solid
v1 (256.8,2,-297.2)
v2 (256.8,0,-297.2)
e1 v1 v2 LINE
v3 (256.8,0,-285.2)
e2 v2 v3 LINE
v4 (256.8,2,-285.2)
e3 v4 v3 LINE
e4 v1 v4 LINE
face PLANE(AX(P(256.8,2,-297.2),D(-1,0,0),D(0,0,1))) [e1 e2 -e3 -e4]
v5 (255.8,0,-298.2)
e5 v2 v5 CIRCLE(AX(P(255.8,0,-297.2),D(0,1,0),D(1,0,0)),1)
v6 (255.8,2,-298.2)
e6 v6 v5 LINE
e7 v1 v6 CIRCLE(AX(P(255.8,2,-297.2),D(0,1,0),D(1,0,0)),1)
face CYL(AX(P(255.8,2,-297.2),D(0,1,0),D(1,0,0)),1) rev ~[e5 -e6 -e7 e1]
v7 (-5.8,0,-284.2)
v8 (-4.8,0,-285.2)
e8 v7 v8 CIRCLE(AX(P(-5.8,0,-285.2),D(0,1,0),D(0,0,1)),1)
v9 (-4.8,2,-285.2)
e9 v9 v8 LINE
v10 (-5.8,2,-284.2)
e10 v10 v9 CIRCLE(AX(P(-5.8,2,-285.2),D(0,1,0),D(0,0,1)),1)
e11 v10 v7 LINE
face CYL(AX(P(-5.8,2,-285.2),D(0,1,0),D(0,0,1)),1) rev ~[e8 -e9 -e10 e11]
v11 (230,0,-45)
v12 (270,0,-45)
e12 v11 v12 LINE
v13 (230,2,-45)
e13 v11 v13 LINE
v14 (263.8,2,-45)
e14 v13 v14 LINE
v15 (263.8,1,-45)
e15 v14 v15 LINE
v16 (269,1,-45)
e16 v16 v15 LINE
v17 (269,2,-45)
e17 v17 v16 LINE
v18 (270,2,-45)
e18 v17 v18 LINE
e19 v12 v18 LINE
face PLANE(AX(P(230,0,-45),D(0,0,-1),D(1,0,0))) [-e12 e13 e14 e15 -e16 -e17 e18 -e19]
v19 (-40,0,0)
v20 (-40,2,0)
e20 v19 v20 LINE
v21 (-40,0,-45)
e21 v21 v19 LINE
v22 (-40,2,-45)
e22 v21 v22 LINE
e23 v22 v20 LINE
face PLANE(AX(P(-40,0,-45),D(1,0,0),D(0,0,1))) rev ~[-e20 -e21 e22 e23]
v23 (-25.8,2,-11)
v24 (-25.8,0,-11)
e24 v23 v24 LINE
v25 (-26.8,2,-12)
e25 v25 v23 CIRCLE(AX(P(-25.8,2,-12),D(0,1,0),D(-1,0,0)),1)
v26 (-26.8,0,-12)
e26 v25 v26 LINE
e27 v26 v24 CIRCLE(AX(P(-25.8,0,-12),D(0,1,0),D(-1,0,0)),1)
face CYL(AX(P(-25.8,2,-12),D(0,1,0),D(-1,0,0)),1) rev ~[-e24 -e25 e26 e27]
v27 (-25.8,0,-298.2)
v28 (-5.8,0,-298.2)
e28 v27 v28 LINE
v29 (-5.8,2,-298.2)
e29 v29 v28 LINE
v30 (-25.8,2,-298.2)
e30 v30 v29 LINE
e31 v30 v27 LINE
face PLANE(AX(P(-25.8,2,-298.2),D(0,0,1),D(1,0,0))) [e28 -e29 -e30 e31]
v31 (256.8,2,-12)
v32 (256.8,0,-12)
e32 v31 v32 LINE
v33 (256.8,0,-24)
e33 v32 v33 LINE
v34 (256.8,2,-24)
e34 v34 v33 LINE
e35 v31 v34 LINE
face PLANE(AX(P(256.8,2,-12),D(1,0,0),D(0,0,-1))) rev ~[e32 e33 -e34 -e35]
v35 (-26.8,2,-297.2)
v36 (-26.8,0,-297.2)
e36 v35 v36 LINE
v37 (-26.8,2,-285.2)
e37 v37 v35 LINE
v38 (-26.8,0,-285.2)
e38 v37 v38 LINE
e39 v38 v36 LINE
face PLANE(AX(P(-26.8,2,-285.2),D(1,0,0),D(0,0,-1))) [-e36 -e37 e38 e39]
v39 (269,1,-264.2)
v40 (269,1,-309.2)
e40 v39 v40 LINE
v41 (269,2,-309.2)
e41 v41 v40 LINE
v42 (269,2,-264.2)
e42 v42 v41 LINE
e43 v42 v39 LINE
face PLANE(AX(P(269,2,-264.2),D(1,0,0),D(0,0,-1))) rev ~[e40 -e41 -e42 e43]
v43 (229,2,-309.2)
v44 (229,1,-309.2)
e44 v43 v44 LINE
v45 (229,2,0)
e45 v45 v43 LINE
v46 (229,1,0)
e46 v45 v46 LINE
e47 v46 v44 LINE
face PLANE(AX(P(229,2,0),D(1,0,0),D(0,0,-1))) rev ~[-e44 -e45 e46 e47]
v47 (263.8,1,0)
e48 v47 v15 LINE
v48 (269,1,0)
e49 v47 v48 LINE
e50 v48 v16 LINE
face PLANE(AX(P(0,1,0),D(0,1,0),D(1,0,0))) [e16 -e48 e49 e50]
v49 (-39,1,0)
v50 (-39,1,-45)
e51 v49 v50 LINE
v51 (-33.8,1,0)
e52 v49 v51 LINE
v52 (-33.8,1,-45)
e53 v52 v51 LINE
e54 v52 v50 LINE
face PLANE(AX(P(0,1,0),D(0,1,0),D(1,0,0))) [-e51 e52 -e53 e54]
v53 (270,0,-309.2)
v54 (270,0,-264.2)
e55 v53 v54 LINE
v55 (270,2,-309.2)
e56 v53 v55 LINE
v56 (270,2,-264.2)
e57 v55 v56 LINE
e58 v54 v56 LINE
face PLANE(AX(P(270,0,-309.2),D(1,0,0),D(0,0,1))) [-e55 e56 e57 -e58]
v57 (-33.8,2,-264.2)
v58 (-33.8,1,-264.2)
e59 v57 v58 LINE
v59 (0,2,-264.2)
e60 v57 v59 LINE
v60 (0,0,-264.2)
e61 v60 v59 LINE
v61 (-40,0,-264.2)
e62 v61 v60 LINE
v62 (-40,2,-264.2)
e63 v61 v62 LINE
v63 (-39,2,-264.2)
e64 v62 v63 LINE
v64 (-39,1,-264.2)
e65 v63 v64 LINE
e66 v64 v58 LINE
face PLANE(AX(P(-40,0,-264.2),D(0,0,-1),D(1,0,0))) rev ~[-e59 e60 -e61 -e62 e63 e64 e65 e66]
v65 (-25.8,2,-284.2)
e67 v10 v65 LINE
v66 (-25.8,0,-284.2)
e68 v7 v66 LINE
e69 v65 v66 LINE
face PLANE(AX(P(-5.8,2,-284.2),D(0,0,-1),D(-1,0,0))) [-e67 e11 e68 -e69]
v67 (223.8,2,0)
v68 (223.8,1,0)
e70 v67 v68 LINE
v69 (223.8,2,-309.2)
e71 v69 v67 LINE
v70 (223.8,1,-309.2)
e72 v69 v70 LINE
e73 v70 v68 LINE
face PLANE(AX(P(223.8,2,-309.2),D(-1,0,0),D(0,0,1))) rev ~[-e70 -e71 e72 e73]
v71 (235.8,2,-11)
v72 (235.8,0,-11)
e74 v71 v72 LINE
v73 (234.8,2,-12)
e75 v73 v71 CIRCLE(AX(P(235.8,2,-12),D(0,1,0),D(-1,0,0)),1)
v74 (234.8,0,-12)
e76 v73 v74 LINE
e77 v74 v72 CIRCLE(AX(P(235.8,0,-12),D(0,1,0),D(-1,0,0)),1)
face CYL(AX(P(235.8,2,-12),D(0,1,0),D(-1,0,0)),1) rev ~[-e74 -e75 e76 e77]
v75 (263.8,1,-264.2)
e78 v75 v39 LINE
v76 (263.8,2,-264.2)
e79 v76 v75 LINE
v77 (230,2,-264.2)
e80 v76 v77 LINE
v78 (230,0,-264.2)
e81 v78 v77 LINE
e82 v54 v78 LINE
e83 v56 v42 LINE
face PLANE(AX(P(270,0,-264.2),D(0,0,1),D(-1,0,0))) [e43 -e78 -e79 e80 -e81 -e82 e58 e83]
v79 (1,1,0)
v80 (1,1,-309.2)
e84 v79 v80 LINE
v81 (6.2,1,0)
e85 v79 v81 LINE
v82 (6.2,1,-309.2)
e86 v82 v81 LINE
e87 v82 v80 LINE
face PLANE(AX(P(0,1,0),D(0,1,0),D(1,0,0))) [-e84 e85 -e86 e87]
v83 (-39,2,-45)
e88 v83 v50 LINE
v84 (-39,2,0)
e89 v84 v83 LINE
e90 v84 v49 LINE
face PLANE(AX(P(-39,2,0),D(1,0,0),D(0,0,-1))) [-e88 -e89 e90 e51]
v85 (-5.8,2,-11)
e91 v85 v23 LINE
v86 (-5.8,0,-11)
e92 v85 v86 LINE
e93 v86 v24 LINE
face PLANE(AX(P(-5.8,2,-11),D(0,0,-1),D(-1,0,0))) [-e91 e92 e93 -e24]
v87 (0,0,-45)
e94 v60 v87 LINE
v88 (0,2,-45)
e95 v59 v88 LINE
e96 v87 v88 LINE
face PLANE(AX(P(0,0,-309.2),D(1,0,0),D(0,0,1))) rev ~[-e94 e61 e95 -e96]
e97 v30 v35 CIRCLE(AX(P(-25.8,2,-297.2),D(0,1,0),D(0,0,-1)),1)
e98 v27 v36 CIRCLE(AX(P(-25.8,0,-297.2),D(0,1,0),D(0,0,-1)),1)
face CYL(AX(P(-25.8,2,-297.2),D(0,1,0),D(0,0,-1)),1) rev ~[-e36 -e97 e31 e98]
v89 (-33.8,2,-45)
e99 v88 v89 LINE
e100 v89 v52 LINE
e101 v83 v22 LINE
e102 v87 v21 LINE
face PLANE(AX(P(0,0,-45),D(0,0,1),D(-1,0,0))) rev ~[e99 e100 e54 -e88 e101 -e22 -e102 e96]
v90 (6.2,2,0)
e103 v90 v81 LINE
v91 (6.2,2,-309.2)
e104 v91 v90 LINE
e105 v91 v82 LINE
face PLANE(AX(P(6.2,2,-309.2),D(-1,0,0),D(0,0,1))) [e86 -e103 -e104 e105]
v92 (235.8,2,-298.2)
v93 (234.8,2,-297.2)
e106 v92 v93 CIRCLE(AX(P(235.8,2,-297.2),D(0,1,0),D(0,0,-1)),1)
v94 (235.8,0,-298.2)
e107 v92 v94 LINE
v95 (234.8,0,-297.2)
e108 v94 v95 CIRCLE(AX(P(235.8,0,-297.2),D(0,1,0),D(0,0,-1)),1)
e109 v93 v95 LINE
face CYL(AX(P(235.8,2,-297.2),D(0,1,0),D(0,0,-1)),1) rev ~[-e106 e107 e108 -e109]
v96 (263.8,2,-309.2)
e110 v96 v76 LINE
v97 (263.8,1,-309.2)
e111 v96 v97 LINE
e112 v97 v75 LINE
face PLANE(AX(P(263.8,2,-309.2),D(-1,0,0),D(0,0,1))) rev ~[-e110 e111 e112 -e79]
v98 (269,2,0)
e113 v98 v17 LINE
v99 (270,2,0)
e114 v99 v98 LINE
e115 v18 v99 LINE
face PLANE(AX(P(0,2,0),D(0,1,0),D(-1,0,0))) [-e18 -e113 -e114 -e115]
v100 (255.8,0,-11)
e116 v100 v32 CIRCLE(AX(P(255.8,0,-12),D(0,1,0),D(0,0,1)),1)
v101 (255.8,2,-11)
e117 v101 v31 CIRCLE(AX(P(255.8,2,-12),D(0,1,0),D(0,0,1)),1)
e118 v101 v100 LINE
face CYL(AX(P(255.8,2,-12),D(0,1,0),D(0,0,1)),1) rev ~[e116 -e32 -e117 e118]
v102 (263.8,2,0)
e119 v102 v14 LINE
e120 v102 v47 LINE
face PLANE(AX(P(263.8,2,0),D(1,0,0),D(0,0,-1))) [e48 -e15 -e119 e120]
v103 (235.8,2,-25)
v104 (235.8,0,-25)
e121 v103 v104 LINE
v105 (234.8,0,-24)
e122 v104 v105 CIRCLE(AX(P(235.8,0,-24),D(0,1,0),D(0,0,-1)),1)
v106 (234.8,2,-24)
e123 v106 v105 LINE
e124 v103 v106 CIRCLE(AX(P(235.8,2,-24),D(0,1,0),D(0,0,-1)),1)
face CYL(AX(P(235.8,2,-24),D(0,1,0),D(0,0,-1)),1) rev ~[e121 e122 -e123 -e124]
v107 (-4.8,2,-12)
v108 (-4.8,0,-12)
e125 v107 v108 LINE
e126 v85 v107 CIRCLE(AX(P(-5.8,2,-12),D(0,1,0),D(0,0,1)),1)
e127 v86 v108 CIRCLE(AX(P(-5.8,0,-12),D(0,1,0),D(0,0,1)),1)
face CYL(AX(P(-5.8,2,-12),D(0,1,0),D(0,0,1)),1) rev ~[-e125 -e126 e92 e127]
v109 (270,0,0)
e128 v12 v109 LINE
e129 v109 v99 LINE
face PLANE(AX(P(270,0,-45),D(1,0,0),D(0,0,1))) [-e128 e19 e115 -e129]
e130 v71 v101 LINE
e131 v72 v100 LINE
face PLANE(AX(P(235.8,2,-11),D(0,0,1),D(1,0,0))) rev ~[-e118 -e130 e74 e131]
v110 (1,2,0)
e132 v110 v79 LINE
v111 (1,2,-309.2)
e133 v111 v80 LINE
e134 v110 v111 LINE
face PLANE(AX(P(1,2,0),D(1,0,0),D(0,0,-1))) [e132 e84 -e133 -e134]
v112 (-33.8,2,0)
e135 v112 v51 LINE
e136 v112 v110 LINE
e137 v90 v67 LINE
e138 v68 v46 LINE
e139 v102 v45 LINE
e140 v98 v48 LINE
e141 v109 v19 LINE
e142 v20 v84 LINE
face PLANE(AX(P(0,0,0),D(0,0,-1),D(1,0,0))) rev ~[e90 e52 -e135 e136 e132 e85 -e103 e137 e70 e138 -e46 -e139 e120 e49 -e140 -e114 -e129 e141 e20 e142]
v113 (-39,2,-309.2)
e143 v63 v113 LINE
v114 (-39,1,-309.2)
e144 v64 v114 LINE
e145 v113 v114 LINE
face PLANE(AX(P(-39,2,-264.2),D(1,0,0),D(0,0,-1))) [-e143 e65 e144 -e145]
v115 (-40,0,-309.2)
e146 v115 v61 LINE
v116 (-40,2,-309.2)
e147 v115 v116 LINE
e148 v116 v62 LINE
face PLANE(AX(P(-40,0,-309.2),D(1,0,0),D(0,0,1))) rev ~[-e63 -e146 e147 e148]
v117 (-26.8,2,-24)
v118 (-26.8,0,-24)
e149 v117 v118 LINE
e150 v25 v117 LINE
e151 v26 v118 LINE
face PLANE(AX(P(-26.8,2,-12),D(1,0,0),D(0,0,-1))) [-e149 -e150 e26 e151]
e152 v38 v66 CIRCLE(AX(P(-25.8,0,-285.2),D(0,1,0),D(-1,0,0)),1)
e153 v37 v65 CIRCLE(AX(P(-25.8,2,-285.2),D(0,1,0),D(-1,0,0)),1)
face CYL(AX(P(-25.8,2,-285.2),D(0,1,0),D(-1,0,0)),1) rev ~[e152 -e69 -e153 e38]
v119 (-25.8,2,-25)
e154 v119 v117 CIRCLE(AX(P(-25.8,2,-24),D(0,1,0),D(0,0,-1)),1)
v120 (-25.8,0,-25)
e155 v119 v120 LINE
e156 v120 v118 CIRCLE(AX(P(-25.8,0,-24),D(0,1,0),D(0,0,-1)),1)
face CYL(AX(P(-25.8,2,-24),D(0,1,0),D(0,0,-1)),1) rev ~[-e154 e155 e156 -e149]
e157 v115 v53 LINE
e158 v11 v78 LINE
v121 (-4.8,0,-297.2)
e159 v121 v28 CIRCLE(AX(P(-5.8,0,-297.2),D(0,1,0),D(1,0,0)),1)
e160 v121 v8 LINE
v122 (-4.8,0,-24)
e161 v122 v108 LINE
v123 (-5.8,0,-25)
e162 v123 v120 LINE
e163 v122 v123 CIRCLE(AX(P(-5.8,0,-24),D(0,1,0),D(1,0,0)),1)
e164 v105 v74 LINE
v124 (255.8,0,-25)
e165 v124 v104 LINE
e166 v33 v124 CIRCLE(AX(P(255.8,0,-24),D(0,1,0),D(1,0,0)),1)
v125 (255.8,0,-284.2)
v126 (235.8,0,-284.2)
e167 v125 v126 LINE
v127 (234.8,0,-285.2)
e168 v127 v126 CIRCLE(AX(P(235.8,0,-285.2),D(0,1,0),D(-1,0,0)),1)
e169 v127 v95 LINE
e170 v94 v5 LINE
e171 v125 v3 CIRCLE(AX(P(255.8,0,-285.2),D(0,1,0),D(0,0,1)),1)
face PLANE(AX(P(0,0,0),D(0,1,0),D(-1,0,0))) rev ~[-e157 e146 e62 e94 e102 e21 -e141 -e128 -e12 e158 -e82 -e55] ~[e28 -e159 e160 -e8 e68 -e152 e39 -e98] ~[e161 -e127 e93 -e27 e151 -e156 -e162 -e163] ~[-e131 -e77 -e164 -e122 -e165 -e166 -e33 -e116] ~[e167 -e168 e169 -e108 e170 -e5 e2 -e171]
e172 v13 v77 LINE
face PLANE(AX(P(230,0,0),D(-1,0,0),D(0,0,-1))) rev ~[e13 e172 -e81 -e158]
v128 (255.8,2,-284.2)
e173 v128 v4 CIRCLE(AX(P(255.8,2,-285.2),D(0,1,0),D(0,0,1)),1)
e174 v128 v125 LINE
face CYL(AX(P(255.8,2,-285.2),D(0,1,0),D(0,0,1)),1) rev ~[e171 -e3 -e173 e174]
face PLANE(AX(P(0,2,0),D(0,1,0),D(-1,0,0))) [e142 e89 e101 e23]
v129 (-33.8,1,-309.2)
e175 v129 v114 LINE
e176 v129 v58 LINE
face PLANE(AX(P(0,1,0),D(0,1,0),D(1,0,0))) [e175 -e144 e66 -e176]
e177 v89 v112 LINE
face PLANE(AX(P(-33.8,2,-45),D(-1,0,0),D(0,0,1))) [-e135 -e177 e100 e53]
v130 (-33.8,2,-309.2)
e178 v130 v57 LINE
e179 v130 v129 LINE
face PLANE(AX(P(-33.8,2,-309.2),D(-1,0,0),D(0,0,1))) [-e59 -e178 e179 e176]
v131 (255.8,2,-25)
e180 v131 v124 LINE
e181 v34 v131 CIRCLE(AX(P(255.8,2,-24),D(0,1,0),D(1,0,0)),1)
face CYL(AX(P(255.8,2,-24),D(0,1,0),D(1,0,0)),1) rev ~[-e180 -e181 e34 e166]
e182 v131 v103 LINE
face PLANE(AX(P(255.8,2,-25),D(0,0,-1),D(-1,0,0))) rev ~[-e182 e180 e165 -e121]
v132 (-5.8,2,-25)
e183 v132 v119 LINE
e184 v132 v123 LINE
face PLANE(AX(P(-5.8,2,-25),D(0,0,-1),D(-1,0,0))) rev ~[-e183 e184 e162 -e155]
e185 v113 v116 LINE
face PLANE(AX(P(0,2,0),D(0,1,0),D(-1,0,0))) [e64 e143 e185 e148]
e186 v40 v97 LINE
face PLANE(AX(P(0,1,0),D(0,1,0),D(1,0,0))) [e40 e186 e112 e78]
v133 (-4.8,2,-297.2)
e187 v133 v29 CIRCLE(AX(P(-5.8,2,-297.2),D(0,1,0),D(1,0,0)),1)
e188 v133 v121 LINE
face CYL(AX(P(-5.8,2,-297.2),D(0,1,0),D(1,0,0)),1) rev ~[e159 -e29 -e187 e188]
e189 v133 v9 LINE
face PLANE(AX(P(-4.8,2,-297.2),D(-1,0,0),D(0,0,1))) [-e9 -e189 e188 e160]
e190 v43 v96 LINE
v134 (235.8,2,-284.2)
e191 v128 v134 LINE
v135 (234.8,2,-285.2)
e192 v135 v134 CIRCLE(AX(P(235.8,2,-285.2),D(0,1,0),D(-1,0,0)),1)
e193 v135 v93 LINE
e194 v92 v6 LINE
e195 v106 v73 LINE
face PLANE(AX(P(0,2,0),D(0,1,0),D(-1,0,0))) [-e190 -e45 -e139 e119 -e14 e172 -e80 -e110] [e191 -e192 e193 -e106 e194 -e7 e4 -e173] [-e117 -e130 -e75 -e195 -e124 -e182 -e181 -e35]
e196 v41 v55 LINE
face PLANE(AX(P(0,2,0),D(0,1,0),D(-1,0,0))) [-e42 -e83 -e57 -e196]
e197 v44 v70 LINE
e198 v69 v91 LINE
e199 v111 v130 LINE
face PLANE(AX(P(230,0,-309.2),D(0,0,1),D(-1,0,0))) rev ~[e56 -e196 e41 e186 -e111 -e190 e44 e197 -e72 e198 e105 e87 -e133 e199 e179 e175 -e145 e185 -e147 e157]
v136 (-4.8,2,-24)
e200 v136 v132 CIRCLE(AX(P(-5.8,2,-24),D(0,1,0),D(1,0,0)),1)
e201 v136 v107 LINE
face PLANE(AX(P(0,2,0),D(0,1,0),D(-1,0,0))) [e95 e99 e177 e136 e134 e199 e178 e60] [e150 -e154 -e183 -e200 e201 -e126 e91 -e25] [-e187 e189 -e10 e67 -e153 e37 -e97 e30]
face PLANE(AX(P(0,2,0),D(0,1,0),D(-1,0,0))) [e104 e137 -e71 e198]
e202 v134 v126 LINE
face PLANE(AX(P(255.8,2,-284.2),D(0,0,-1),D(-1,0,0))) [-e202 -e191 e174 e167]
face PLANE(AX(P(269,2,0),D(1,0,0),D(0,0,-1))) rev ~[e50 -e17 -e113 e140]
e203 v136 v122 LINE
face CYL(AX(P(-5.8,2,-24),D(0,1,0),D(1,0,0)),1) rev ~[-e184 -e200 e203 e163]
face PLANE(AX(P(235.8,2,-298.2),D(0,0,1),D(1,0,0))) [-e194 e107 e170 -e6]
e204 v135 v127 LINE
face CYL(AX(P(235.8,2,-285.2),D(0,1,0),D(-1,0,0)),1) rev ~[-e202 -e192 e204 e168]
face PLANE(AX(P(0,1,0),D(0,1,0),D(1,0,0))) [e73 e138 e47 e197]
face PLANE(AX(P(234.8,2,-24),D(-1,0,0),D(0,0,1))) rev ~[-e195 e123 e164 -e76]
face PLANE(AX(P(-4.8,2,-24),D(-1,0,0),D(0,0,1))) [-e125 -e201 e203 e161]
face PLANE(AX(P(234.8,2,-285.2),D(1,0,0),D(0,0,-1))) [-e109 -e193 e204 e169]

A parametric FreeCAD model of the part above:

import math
import FreeCAD as App
import Part
import Sketcher
Q = App.Units.Quantity

doc = App.newDocument("Part")
body = doc.addObject("PartDesign::Body", "Body")

sketch1 = doc.addObject("Sketcher::SketchObject", "Sketch")
body.addObject(sketch1)
sketch1.AttachmentSupport = (doc.XZ_Plane, [""])
sketch1.MapMode = "FlatFace"
sketch1.addGeometry([
    Part.LineSegment(App.Vector(0, -309, 0), App.Vector(0, 0, 0)),
    Part.LineSegment(App.Vector(0, 0, 0), App.Vector(230, 0, 0)),
    Part.LineSegment(App.Vector(230, 0, 0), App.Vector(230, -309, 0)),
    Part.LineSegment(App.Vector(230, -309, 0), App.Vector(0, -309, 0)),
], False)
sketch1.addConstraint([
    Sketcher.Constraint("Coincident", 0, 2, 1, 1),
    Sketcher.Constraint("Coincident", 1, 2, 2, 1),
    Sketcher.Constraint("Coincident", 2, 2, 3, 1),
    Sketcher.Constraint("Coincident", 3, 2, 0, 1),
    Sketcher.Constraint("Vertical", 0),
    Sketcher.Constraint("Horizontal", 1),
    Sketcher.Constraint("Vertical", 2),
    Sketcher.Constraint("Horizontal", 3),
    Sketcher.Constraint("Coincident", 0, 2, -1, 1),
    Sketcher.Constraint("DistanceX", 1, 1, 1, 2, Q("230 mm")),
    Sketcher.Constraint("DistanceY", 0, 1, 0, 2, Q("309.2 mm")),
])
pad1 = doc.addObject("PartDesign::Pad", "Pad")
body.addObject(pad1)
pad1.Profile = sketch1
pad1.Length = 2
pad1.Reversed = True

sketch2 = doc.addObject("Sketcher::SketchObject", "Sketch001")
body.addObject(sketch2)
sketch2.AttachmentSupport = (doc.XZ_Plane, [""])
sketch2.MapMode = "FlatFace"
sketch2.AttachmentOffset = App.Placement(App.Vector(0, 0, -2), App.Rotation())
sketch2.addGeometry([
    Part.LineSegment(App.Vector(1, -309, 0), App.Vector(1, 0, 0)),
    Part.LineSegment(App.Vector(1, 0, 0), App.Vector(6, 0, 0)),
    Part.LineSegment(App.Vector(6, 0, 0), App.Vector(6, -309, 0)),
    Part.LineSegment(App.Vector(6, -309, 0), App.Vector(1, -309, 0)),
    Part.LineSegment(App.Vector(224, -309, 0), App.Vector(224, 0, 0)),
    Part.LineSegment(App.Vector(224, 0, 0), App.Vector(229, 0, 0)),
    Part.LineSegment(App.Vector(229, 0, 0), App.Vector(229, -309, 0)),
    Part.LineSegment(App.Vector(229, -309, 0), App.Vector(224, -309, 0)),
], False)
sketch2.addConstraint([
    Sketcher.Constraint("Coincident", 0, 2, 1, 1),
    Sketcher.Constraint("Coincident", 1, 2, 2, 1),
    Sketcher.Constraint("Coincident", 2, 2, 3, 1),
    Sketcher.Constraint("Coincident", 3, 2, 0, 1),
    Sketcher.Constraint("Coincident", 4, 2, 5, 1),
    Sketcher.Constraint("Coincident", 5, 2, 6, 1),
    Sketcher.Constraint("Coincident", 6, 2, 7, 1),
    Sketcher.Constraint("Coincident", 7, 2, 4, 1),
    Sketcher.Constraint("Vertical", 0),
    Sketcher.Constraint("Horizontal", 1),
    Sketcher.Constraint("Vertical", 2),
    Sketcher.Constraint("Horizontal", 3),
    Sketcher.Constraint("Vertical", 4),
    Sketcher.Constraint("Horizontal", 5),
    Sketcher.Constraint("Vertical", 6),
    Sketcher.Constraint("Horizontal", 7),
    Sketcher.Constraint("PointOnObject", 0, 2, -1),
    Sketcher.Constraint("PointOnObject", 4, 2, -1),
    Sketcher.Constraint("Horizontal", 3, 2, 6, 2),
    Sketcher.Constraint("Equal", 3, 5),
    Sketcher.Constraint("DistanceX", 1, 1, 1, 2, Q("5.2 mm")),
    Sketcher.Constraint("DistanceX", -1, 1, 0, 2, Q("1 mm")),
    Sketcher.Constraint("DistanceY", 0, 1, 0, 2, Q("309.2 mm")),
    Sketcher.Constraint("DistanceX", -1, 1, 5, 2, Q("229 mm")),
])
pocket1 = doc.addObject("PartDesign::Pocket", "Pocket")
body.addObject(pocket1)
pocket1.Profile = sketch2
pocket1.Length = 1
pocket1.Reversed = True

sketch3 = doc.addObject("Sketcher::SketchObject", "Sketch002")
body.addObject(sketch3)
sketch3.AttachmentSupport = (doc.XZ_Plane, [""])
sketch3.MapMode = "FlatFace"
sketch3.addGeometry([
    Part.LineSegment(App.Vector(0, -309, 0), App.Vector(0, -264, 0)),
    Part.LineSegment(App.Vector(0, -264, 0), App.Vector(-40, -264, 0)),
    Part.LineSegment(App.Vector(-40, -264, 0), App.Vector(-40, -309, 0)),
    Part.LineSegment(App.Vector(-40, -309, 0), App.Vector(0, -309, 0)),
    Part.LineSegment(App.Vector(0, -45, 0), App.Vector(0, 0, 0)),
    Part.LineSegment(App.Vector(0, 0, 0), App.Vector(-40, 0, 0)),
    Part.LineSegment(App.Vector(-40, 0, 0), App.Vector(-40, -45, 0)),
    Part.LineSegment(App.Vector(-40, -45, 0), App.Vector(0, -45, 0)),
    Part.LineSegment(App.Vector(270, 0, 0), App.Vector(230, 0, 0)),
    Part.LineSegment(App.Vector(230, 0, 0), App.Vector(230, -45, 0)),
    Part.LineSegment(App.Vector(230, -45, 0), App.Vector(270, -45, 0)),
    Part.LineSegment(App.Vector(270, -45, 0), App.Vector(270, 0, 0)),
    Part.LineSegment(App.Vector(270, -264, 0), App.Vector(230, -264, 0)),
    Part.LineSegment(App.Vector(230, -264, 0), App.Vector(230, -309, 0)),
    Part.LineSegment(App.Vector(230, -309, 0), App.Vector(270, -309, 0)),
    Part.LineSegment(App.Vector(270, -309, 0), App.Vector(270, -264, 0)),
], False)
sketch3.addConstraint([
    Sketcher.Constraint("Coincident", 0, 2, 1, 1),
    Sketcher.Constraint("Coincident", 1, 2, 2, 1),
    Sketcher.Constraint("Coincident", 2, 2, 3, 1),
    Sketcher.Constraint("Coincident", 3, 2, 0, 1),
    Sketcher.Constraint("Coincident", 4, 2, 5, 1),
    Sketcher.Constraint("Coincident", 5, 2, 6, 1),
    Sketcher.Constraint("Coincident", 6, 2, 7, 1),
    Sketcher.Constraint("Coincident", 7, 2, 4, 1),
    Sketcher.Constraint("Coincident", 8, 2, 9, 1),
    Sketcher.Constraint("Coincident", 9, 2, 10, 1),
    Sketcher.Constraint("Coincident", 10, 2, 11, 1),
    Sketcher.Constraint("Coincident", 11, 2, 8, 1),
    Sketcher.Constraint("Coincident", 12, 2, 13, 1),
    Sketcher.Constraint("Coincident", 13, 2, 14, 1),
    Sketcher.Constraint("Coincident", 14, 2, 15, 1),
    Sketcher.Constraint("Coincident", 15, 2, 12, 1),
    Sketcher.Constraint("Vertical", 0),
    Sketcher.Constraint("Horizontal", 1),
    Sketcher.Constraint("Vertical", 2),
    Sketcher.Constraint("Horizontal", 3),
    Sketcher.Constraint("Vertical", 4),
    Sketcher.Constraint("Horizontal", 5),
    Sketcher.Constraint("Vertical", 6),
    Sketcher.Constraint("Horizontal", 7),
    Sketcher.Constraint("Horizontal", 8),
    Sketcher.Constraint("Vertical", 9),
    Sketcher.Constraint("Horizontal", 10),
    Sketcher.Constraint("Vertical", 11),
    Sketcher.Constraint("Horizontal", 12),
    Sketcher.Constraint("Vertical", 13),
    Sketcher.Constraint("Horizontal", 14),
    Sketcher.Constraint("Vertical", 15),
    Sketcher.Constraint("Coincident", 4, 2, -1, 1),
    Sketcher.Constraint("PointOnObject", 0, 2, -2),
    Sketcher.Constraint("PointOnObject", 8, 2, -1),
    Sketcher.Constraint("Horizontal", 7, 2, 9, 2),
    Sketcher.Constraint("Horizontal", 1, 2, 12, 2),
    Sketcher.Constraint("Horizontal", 3, 2, 13, 2),
    Sketcher.Constraint("Vertical", 2, 2, 5, 2),
    Sketcher.Constraint("Vertical", 9, 2, 12, 2),
    Sketcher.Constraint("Vertical", 11, 2, 14, 2),
    Sketcher.Constraint("Equal", 7, 8),
    Sketcher.Constraint("Equal", 2, 4),
    Sketcher.Constraint("DistanceY", 0, 1, 0, 2, Q("45 mm")),
    Sketcher.Constraint("DistanceX", 1, 2, 1, 1, Q("40 mm")),
    Sketcher.Constraint("DistanceX", -1, 1, 8, 2, Q("230 mm")),
    Sketcher.Constraint("DistanceY", 0, 2, -1, 1, Q("264.2 mm")),
])
pad2 = doc.addObject("PartDesign::Pad", "Pad001")
body.addObject(pad2)
pad2.Profile = sketch3
pad2.Length = 2
pad2.Reversed = True

sketch4 = doc.addObject("Sketcher::SketchObject", "Sketch003")
body.addObject(sketch4)
sketch4.AttachmentSupport = (doc.XZ_Plane, [""])
sketch4.MapMode = "FlatFace"
sketch4.AttachmentOffset = App.Placement(App.Vector(0, 0, -2), App.Rotation())
sketch4.addGeometry([
    Part.LineSegment(App.Vector(-39, 0, 0), App.Vector(-34, 0, 0)),
    Part.LineSegment(App.Vector(-34, 0, 0), App.Vector(-34, -45, 0)),
    Part.LineSegment(App.Vector(-34, -45, 0), App.Vector(-39, -45, 0)),
    Part.LineSegment(App.Vector(-39, -45, 0), App.Vector(-39, 0, 0)),
    Part.LineSegment(App.Vector(-34, -264, 0), App.Vector(-34, -309, 0)),
    Part.LineSegment(App.Vector(-34, -309, 0), App.Vector(-39, -309, 0)),
    Part.LineSegment(App.Vector(-39, -309, 0), App.Vector(-39, -264, 0)),
    Part.LineSegment(App.Vector(-39, -264, 0), App.Vector(-34, -264, 0)),
    Part.LineSegment(App.Vector(269, -309, 0), App.Vector(264, -309, 0)),
    Part.LineSegment(App.Vector(264, -309, 0), App.Vector(264, -264, 0)),
    Part.LineSegment(App.Vector(264, -264, 0), App.Vector(269, -264, 0)),
    Part.LineSegment(App.Vector(269, -264, 0), App.Vector(269, -309, 0)),
    Part.LineSegment(App.Vector(264, -45, 0), App.Vector(264, 0, 0)),
    Part.LineSegment(App.Vector(264, 0, 0), App.Vector(269, 0, 0)),
    Part.LineSegment(App.Vector(269, 0, 0), App.Vector(269, -45, 0)),
    Part.LineSegment(App.Vector(269, -45, 0), App.Vector(264, -45, 0)),
], False)
sketch4.addConstraint([
    Sketcher.Constraint("Coincident", 0, 2, 1, 1),
    Sketcher.Constraint("Coincident", 1, 2, 2, 1),
    Sketcher.Constraint("Coincident", 2, 2, 3, 1),
    Sketcher.Constraint("Coincident", 3, 2, 0, 1),
    Sketcher.Constraint("Coincident", 4, 2, 5, 1),
    Sketcher.Constraint("Coincident", 5, 2, 6, 1),
    Sketcher.Constraint("Coincident", 6, 2, 7, 1),
    Sketcher.Constraint("Coincident", 7, 2, 4, 1),
    Sketcher.Constraint("Coincident", 8, 2, 9, 1),
    Sketcher.Constraint("Coincident", 9, 2, 10, 1),
    Sketcher.Constraint("Coincident", 10, 2, 11, 1),
    Sketcher.Constraint("Coincident", 11, 2, 8, 1),
    Sketcher.Constraint("Coincident", 12, 2, 13, 1),
    Sketcher.Constraint("Coincident", 13, 2, 14, 1),
    Sketcher.Constraint("Coincident", 14, 2, 15, 1),
    Sketcher.Constraint("Coincident", 15, 2, 12, 1),
    Sketcher.Constraint("Horizontal", 0),
    Sketcher.Constraint("Vertical", 1),
    Sketcher.Constraint("Horizontal", 2),
    Sketcher.Constraint("Vertical", 3),
    Sketcher.Constraint("Vertical", 4),
    Sketcher.Constraint("Horizontal", 5),
    Sketcher.Constraint("Vertical", 6),
    Sketcher.Constraint("Horizontal", 7),
    Sketcher.Constraint("Horizontal", 8),
    Sketcher.Constraint("Vertical", 9),
    Sketcher.Constraint("Horizontal", 10),
    Sketcher.Constraint("Vertical", 11),
    Sketcher.Constraint("Vertical", 12),
    Sketcher.Constraint("Horizontal", 13),
    Sketcher.Constraint("Vertical", 14),
    Sketcher.Constraint("Horizontal", 15),
    Sketcher.Constraint("PointOnObject", 0, 2, -1),
    Sketcher.Constraint("PointOnObject", 12, 2, -1),
    Sketcher.Constraint("Horizontal", 5, 2, 8, 2),
    Sketcher.Constraint("Horizontal", 7, 2, 9, 2),
    Sketcher.Constraint("Horizontal", 2, 2, 14, 2),
    Sketcher.Constraint("Vertical", 1, 2, 4, 2),
    Sketcher.Constraint("Vertical", 3, 2, 5, 2),
    Sketcher.Constraint("Vertical", 9, 2, 12, 2),
    Sketcher.Constraint("Vertical", 11, 2, 13, 2),
    Sketcher.Constraint("Equal", 7, 8),
    Sketcher.Constraint("Equal", 3, 4),
    Sketcher.Constraint("DistanceX", 0, 1, 0, 2, Q("5.2 mm")),
    Sketcher.Constraint("DistanceY", 1, 2, 1, 1, Q("45 mm")),
    Sketcher.Constraint("DistanceX", 2, 2, -1, 1, Q("39 mm")),
    Sketcher.Constraint("DistanceX", -1, 1, 10, 2, Q("269 mm")),
    Sketcher.Constraint("DistanceY", 4, 2, -1, 1, Q("309.2 mm")),
])
pocket2 = doc.addObject("PartDesign::Pocket", "Pocket001")
body.addObject(pocket2)
pocket2.Profile = sketch4
pocket2.Length = 1
pocket2.Reversed = True

sketch5 = doc.addObject("Sketcher::SketchObject", "Sketch004")
body.addObject(sketch5)
sketch5.AttachmentSupport = (doc.XZ_Plane, [""])
sketch5.MapMode = "FlatFace"
sketch5.AttachmentOffset = App.Placement(App.Vector(0, 0, -2), App.Rotation())
sketch5.addGeometry([
    Part.LineSegment(App.Vector(-4.8, -12, 0), App.Vector(-4.8, -24, 0)),
    Part.ArcOfCircle(Part.Circle(App.Vector(-5.8, -24, 0), App.Vector(0, 0, 1), 1), math.radians(-90), math.radians(0)),
    Part.LineSegment(App.Vector(-5.8, -25, 0), App.Vector(-25.8, -25, 0)),
    Part.ArcOfCircle(Part.Circle(App.Vector(-25.8, -24, 0), App.Vector(0, 0, 1), 1), math.radians(180), math.radians(270)),
    Part.LineSegment(App.Vector(-26.8, -24, 0), App.Vector(-26.8, -12, 0)),
    Part.ArcOfCircle(Part.Circle(App.Vector(-25.8, -12, 0), App.Vector(0, 0, 1), 1), math.radians(90), math.radians(180)),
    Part.LineSegment(App.Vector(-25.8, -11, 0), App.Vector(-5.8, -11, 0)),
    Part.ArcOfCircle(Part.Circle(App.Vector(-5.8, -12, 0), App.Vector(0, 0, 1), 1), math.radians(0), math.radians(90)),
    Part.ArcOfCircle(Part.Circle(App.Vector(255.8, -24, 0), App.Vector(0, 0, 1), 1), math.radians(-90), math.radians(0)),
    Part.LineSegment(App.Vector(255.8, -25, 0), App.Vector(235.8, -25, 0)),
    Part.ArcOfCircle(Part.Circle(App.Vector(235.8, -24, 0), App.Vector(0, 0, 1), 1), math.radians(180), math.radians(270)),
    Part.LineSegment(App.Vector(234.8, -24, 0), App.Vector(234.8, -12, 0)),
    Part.ArcOfCircle(Part.Circle(App.Vector(235.8, -12, 0), App.Vector(0, 0, 1), 1), math.radians(90), math.radians(180)),
    Part.LineSegment(App.Vector(235.8, -11, 0), App.Vector(255.8, -11, 0)),
    Part.ArcOfCircle(Part.Circle(App.Vector(255.8, -12, 0), App.Vector(0, 0, 1), 1), math.radians(0), math.radians(90)),
    Part.LineSegment(App.Vector(256.8, -12, 0), App.Vector(256.8, -24, 0)),
    Part.LineSegment(App.Vector(235.8, -284.2, 0), App.Vector(255.8, -284.2, 0)),
    Part.ArcOfCircle(Part.Circle(App.Vector(255.8, -285.2, 0), App.Vector(0, 0, 1), 1), math.radians(0), math.radians(90)),
    Part.LineSegment(App.Vector(256.8, -285.2, 0), App.Vector(256.8, -297.2, 0)),
    Part.ArcOfCircle(Part.Circle(App.Vector(255.8, -297.2, 0), App.Vector(0, 0, 1), 1), math.radians(-90), math.radians(0)),
    Part.LineSegment(App.Vector(255.8, -298.2, 0), App.Vector(235.8, -298.2, 0)),
    Part.ArcOfCircle(Part.Circle(App.Vector(235.8, -297.2, 0), App.Vector(0, 0, 1), 1), math.radians(180), math.radians(270)),
    Part.LineSegment(App.Vector(234.8, -297.2, 0), App.Vector(234.8, -285.2, 0)),
    Part.ArcOfCircle(Part.Circle(App.Vector(235.8, -285.2, 0), App.Vector(0, 0, 1), 1), math.radians(90), math.radians(180)),
    Part.LineSegment(App.Vector(-5.8, -298.2, 0), App.Vector(-25.8, -298.2, 0)),
    Part.ArcOfCircle(Part.Circle(App.Vector(-25.8, -297.2, 0), App.Vector(0, 0, 1), 1), math.radians(180), math.radians(270)),
    Part.LineSegment(App.Vector(-26.8, -297.2, 0), App.Vector(-26.8, -285.2, 0)),
    Part.ArcOfCircle(Part.Circle(App.Vector(-25.8, -285.2, 0), App.Vector(0, 0, 1), 1), math.radians(90), math.radians(180)),
    Part.LineSegment(App.Vector(-25.8, -284.2, 0), App.Vector(-5.8, -284.2, 0)),
    Part.ArcOfCircle(Part.Circle(App.Vector(-5.8, -285.2, 0), App.Vector(0, 0, 1), 1), math.radians(0), math.radians(90)),
    Part.LineSegment(App.Vector(-4.8, -285.2, 0), App.Vector(-4.8, -297.2, 0)),
    Part.ArcOfCircle(Part.Circle(App.Vector(-5.8, -297.2, 0), App.Vector(0, 0, 1), 1), math.radians(-90), math.radians(0)),
], False)
sketch5.addConstraint([
    Sketcher.Constraint("Tangent", 0, 2, 1, 2),
    Sketcher.Constraint("Tangent", 1, 1, 2, 1),
    Sketcher.Constraint("Tangent", 2, 2, 3, 2),
    Sketcher.Constraint("Tangent", 3, 1, 4, 1),
    Sketcher.Constraint("Tangent", 4, 2, 5, 2),
    Sketcher.Constraint("Tangent", 5, 1, 6, 1),
    Sketcher.Constraint("Tangent", 6, 2, 7, 2),
    Sketcher.Constraint("Tangent", 7, 1, 0, 1),
    Sketcher.Constraint("Tangent", 8, 1, 9, 1),
    Sketcher.Constraint("Tangent", 9, 2, 10, 2),
    Sketcher.Constraint("Tangent", 10, 1, 11, 1),
    Sketcher.Constraint("Tangent", 11, 2, 12, 2),
    Sketcher.Constraint("Tangent", 12, 1, 13, 1),
    Sketcher.Constraint("Tangent", 13, 2, 14, 2),
    Sketcher.Constraint("Tangent", 14, 1, 15, 1),
    Sketcher.Constraint("Tangent", 15, 2, 8, 2),
    Sketcher.Constraint("Tangent", 16, 2, 17, 2),
    Sketcher.Constraint("Tangent", 17, 1, 18, 1),
    Sketcher.Constraint("Tangent", 18, 2, 19, 2),
    Sketcher.Constraint("Tangent", 19, 1, 20, 1),
    Sketcher.Constraint("Tangent", 20, 2, 21, 2),
    Sketcher.Constraint("Tangent", 21, 1, 22, 1),
    Sketcher.Constraint("Tangent", 22, 2, 23, 2),
    Sketcher.Constraint("Tangent", 23, 1, 16, 1),
    Sketcher.Constraint("Tangent", 24, 2, 25, 2),
    Sketcher.Constraint("Tangent", 25, 1, 26, 1),
    Sketcher.Constraint("Tangent", 26, 2, 27, 2),
    Sketcher.Constraint("Tangent", 27, 1, 28, 1),
    Sketcher.Constraint("Tangent", 28, 2, 29, 2),
    Sketcher.Constraint("Tangent", 29, 1, 30, 1),
    Sketcher.Constraint("Tangent", 30, 2, 31, 2),
    Sketcher.Constraint("Tangent", 31, 1, 24, 1),
    Sketcher.Constraint("Vertical", 0),
    Sketcher.Constraint("Horizontal", 2),
    Sketcher.Constraint("Vertical", 4),
    Sketcher.Constraint("Horizontal", 6),
    Sketcher.Constraint("Horizontal", 9),
    Sketcher.Constraint("Vertical", 11),
    Sketcher.Constraint("Horizontal", 13),
    Sketcher.Constraint("Vertical", 15),
    Sketcher.Constraint("Horizontal", 16),
    Sketcher.Constraint("Vertical", 18),
    Sketcher.Constraint("Horizontal", 20),
    Sketcher.Constraint("Vertical", 22),
    Sketcher.Constraint("Horizontal", 24),
    Sketcher.Constraint("Vertical", 26),
    Sketcher.Constraint("Horizontal", 28),
    Sketcher.Constraint("Vertical", 30),
    Sketcher.Constraint("Equal", 1, 3),
    Sketcher.Constraint("Equal", 3, 5),
    Sketcher.Constraint("Equal", 5, 7),
    Sketcher.Constraint("Equal", 7, 8),
    Sketcher.Constraint("Equal", 8, 10),
    Sketcher.Constraint("Equal", 10, 12),
    Sketcher.Constraint("Equal", 12, 14),
    Sketcher.Constraint("Equal", 14, 17),
    Sketcher.Constraint("Equal", 17, 19),
    Sketcher.Constraint("Equal", 19, 21),
    Sketcher.Constraint("Equal", 21, 23),
    Sketcher.Constraint("Equal", 23, 25),
    Sketcher.Constraint("Equal", 25, 27),
    Sketcher.Constraint("Equal", 27, 29),
    Sketcher.Constraint("Equal", 29, 31),
    Sketcher.Constraint("Horizontal", 3, 3, 8, 3),
    Sketcher.Constraint("Horizontal", 7, 3, 12, 3),
    Sketcher.Constraint("Horizontal", 21, 3, 25, 3),
    Sketcher.Constraint("Horizontal", 23, 3, 27, 3),
    Sketcher.Constraint("Vertical", 14, 3, 17, 3),
    Sketcher.Constraint("Vertical", 12, 3, 21, 3),
    Sketcher.Constraint("Vertical", 5, 3, 25, 3),
    Sketcher.Constraint("Vertical", 7, 3, 29, 3),
    Sketcher.Constraint("Equal", 6, 9),
    Sketcher.Constraint("Equal", 15, 18),
    Sketcher.Constraint("Radius", 1, Q("1 mm")),
    Sketcher.Constraint("DistanceY", 5, 1, -1, 1, Q("11 mm")),
    Sketcher.Constraint("DistanceY", 2, 2, 5, 1, Q("14 mm")),
    Sketcher.Constraint("DistanceX", 2, 2, 2, 1, Q("20 mm")),
    Sketcher.Constraint("DistanceX", 1, 3, -1, 1, Q("5.8 mm")),
    Sketcher.Constraint("DistanceX", -1, 1, 8, 3, Q("255.8 mm")),
    Sketcher.Constraint("DistanceY", 17, 3, -1, 1, Q("285.2 mm")),
])
pocket3 = doc.addObject("PartDesign::Pocket", "Pocket002")
body.addObject(pocket3)
pocket3.Profile = sketch5
pocket3.Length = 10
pocket3.Reversed = True

doc.recompute()
